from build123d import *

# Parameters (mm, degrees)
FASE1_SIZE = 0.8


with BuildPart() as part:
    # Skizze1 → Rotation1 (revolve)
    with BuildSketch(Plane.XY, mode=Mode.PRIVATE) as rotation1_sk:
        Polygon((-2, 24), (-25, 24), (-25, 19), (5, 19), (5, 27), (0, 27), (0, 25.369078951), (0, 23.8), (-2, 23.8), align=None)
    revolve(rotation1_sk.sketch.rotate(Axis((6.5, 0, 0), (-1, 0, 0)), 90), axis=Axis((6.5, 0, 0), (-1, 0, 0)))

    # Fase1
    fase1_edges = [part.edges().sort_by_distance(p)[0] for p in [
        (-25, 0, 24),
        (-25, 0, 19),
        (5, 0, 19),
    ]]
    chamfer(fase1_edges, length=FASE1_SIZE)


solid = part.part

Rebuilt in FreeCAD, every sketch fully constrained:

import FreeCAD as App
import Part
import Sketcher
Q = App.Units.Quantity


def edges_at(feature, points):
    """Names of the edges that pass closest to the given points."""
    edges = feature.Shape.Edges
    near = lambda p: min(range(len(edges)), key=lambda i: edges[i].distToShape(Part.Vertex(*p))[0])
    return sorted({f"Edge{near(p) + 1}" for p in points})

doc = App.newDocument("Part")
body = doc.addObject("PartDesign::Body", "Body")

sketch1 = doc.addObject("Sketcher::SketchObject", "Sketch")
body.addObject(sketch1)
sketch1.AttachmentSupport = (doc.XY_Plane, [""])
sketch1.MapMode = "FlatFace"
sketch1.addGeometry([
    Part.LineSegment(App.Vector(-2, 24, 0), App.Vector(-25, 24, 0)),
    Part.LineSegment(App.Vector(-25, 24, 0), App.Vector(-25, 19, 0)),
    Part.LineSegment(App.Vector(-25, 19, 0), App.Vector(5, 19, 0)),
    Part.LineSegment(App.Vector(5, 19, 0), App.Vector(5, 27, 0)),
    Part.LineSegment(App.Vector(5, 27, 0), App.Vector(0, 27, 0)),
    Part.LineSegment(App.Vector(0, 27, 0), App.Vector(0, 23.8, 0)),
    Part.LineSegment(App.Vector(0, 23.8, 0), App.Vector(-2, 23.8, 0)),
    Part.LineSegment(App.Vector(-2, 23.8, 0), App.Vector(-2, 24, 0)),
], False)
sketch1.addConstraint([
    Sketcher.Constraint("Coincident", 0, 2, 1, 1),
    Sketcher.Constraint("Coincident", 1, 2, 2, 1),
    Sketcher.Constraint("Coincident", 2, 2, 3, 1),
    Sketcher.Constraint("Coincident", 3, 2, 4, 1),
    Sketcher.Constraint("Coincident", 4, 2, 5, 1),
    Sketcher.Constraint("Coincident", 5, 2, 6, 1),
    Sketcher.Constraint("Coincident", 6, 2, 7, 1),
    Sketcher.Constraint("Coincident", 7, 2, 0, 1),
    Sketcher.Constraint("Horizontal", 0),
    Sketcher.Constraint("Vertical", 1),
    Sketcher.Constraint("Horizontal", 2),
    Sketcher.Constraint("Vertical", 3),
    Sketcher.Constraint("Horizontal", 4),
    Sketcher.Constraint("Vertical", 5),
    Sketcher.Constraint("Horizontal", 6),
    Sketcher.Constraint("Vertical", 7),
    Sketcher.Constraint("PointOnObject", 4, 2, -2),
    Sketcher.Constraint("Equal", 4, 1),
    Sketcher.Constraint("DistanceX", 0, 2, 0, 1, Q("23 mm")),
    Sketcher.Constraint("DistanceX", 2, 1, 2, 2, Q("30 mm")),
    Sketcher.Constraint("DistanceX", 4, 2, 4, 1, Q("5 mm")),
    Sketcher.Constraint("DistanceY", 3, 1, 3, 2, Q("8 mm")),
    Sketcher.Constraint("DistanceY", 5, 2, 5, 1, Q("3.2 mm")),
    Sketcher.Constraint("DistanceY", -1, 1, 0, 2, Q("24 mm")),
])
revolution = doc.addObject("PartDesign::Revolution", "Revolution")
body.addObject(revolution)
revolution.Profile = sketch1
revolution.ReferenceAxis = (sketch1, ["H_Axis"])
revolution.Angle = 360
doc.recompute()

chamfer = doc.addObject("PartDesign::Chamfer", "Chamfer")
body.addObject(chamfer)
chamfer.Base = (revolution, edges_at(revolution, [(-25, 0, 24), (-25, 0, 19), (5, 0, 19)]))
chamfer.Size = 0.8

doc.recompute()
